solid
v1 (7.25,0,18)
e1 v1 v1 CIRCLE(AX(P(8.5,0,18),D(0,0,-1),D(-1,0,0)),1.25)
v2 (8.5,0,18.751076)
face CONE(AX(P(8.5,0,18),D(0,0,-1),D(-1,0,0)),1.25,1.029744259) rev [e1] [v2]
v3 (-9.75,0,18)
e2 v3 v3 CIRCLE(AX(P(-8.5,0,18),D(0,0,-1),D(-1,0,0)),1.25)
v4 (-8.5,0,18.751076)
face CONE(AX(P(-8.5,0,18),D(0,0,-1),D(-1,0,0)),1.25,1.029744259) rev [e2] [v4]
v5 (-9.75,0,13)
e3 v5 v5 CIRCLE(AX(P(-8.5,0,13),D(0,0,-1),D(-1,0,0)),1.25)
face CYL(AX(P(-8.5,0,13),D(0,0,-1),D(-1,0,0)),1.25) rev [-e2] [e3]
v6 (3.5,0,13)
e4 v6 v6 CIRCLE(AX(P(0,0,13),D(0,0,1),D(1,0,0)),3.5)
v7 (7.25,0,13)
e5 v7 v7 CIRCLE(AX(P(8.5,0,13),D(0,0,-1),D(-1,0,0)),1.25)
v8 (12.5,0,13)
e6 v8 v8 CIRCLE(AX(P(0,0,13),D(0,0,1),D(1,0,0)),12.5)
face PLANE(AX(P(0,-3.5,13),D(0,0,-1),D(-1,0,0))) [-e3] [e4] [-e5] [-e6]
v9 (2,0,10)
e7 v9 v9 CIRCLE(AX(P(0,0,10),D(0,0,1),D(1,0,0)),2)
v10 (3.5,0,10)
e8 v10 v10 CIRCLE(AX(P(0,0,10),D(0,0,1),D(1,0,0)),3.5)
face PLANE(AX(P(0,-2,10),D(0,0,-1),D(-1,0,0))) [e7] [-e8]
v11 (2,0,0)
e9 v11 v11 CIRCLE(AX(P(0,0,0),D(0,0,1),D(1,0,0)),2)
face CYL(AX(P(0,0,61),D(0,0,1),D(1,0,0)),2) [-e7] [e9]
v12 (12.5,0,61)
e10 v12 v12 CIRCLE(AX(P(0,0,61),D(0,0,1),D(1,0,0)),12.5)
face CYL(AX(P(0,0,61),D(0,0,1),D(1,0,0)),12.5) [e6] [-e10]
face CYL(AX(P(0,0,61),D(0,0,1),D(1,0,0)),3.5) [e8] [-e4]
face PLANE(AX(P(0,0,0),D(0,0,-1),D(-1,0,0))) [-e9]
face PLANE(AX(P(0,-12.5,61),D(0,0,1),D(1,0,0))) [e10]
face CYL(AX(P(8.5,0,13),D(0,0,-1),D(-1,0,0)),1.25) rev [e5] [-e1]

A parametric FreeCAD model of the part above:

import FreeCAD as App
import Part
import Sketcher
from FreeCAD import Vector
Q = App.Units.Quantity


def add_polygon(sketch, points):
    """Adds a closed chain of lines whose ends are joined by coincident constraints."""
    first, n = sketch.GeometryCount, len(points)
    for a, b in zip(points, points[1:] + points[:1]):
        sketch.addGeometry(Part.LineSegment(App.Vector(*a, 0), App.Vector(*b, 0)), False)
    for i in range(n):
        sketch.addConstraint(Sketcher.Constraint("Coincident", first + i, 2, first + (i + 1) % n, 1))

doc = App.newDocument("Part")
body = doc.addObject("PartDesign::Body", "Body")

# Sketch on YZ plane
sketch1 = doc.addObject("Sketcher::SketchObject", "Sketch")
body.addObject(sketch1)
sketch1.AttachmentSupport = (doc.YZ_Plane, [""])
sketch1.MapMode = "FlatFace"
add_polygon(sketch1, [(-2, 0), (0, 0), (0, 61), (-12.5, 61), (-12.5, 13), (-3.5, 13), (-3.5, 10), (-2, 10)])  # lines 0-7
sketch1.addConstraint([
    Sketcher.Constraint("Horizontal", 0),
    Sketcher.Constraint("Vertical", 1),
    Sketcher.Constraint("Horizontal", 2),
    Sketcher.Constraint("Vertical", 3),
    Sketcher.Constraint("Horizontal", 4),
    Sketcher.Constraint("Vertical", 5),
    Sketcher.Constraint("Horizontal", 6),
    Sketcher.Constraint("Vertical", 7),
    Sketcher.Constraint("Coincident", 0, 2, -1, 1),
    Sketcher.Constraint("DistanceX", 0, 1, 0, 2, Q("2 mm")),
    Sketcher.Constraint("DistanceX", 4, 1, 4, 2, Q("9 mm")),
    Sketcher.Constraint("DistanceY", 1, 1, 1, 2, Q("61 mm")),
    Sketcher.Constraint("DistanceY", 3, 2, 3, 1, Q("48 mm")),
    Sketcher.Constraint("DistanceY", 5, 2, 5, 1, Q("3 mm")),
    Sketcher.Constraint("DistanceX", 2, 2, 2, 1, Q("12.5 mm")),
])
revolution = doc.addObject("PartDesign::Revolution", "Revolution")
body.addObject(revolution)
revolution.Profile = sketch1
revolution.ReferenceAxis = (sketch1, ["V_Axis"])
revolution.Angle = 360

# Sketch on XY plane
sketch2 = doc.addObject("Sketcher::SketchObject", "Sketch001")
body.addObject(sketch2)
sketch2.AttachmentSupport = (doc.XY_Plane, [""])
sketch2.MapMode = "FlatFace"
sketch2.AttachmentOffset = App.Placement(Vector(0, 0, 13), App.Rotation())
sketch2.addGeometry([
    Part.Circle(Vector(8.5, 0, 0), Vector(0, 0, 1), 1.2),
    Part.Circle(Vector(-8.5, 0, 0), Vector(0, 0, 1), 1.2),
], False)
sketch2.addConstraint([
    Sketcher.Constraint("Equal", 0, 1),
    Sketcher.Constraint("Symmetric", 0, 3, 1, 3, -1, 1),
    Sketcher.Constraint("PointOnObject", 0, 3, -1),
    Sketcher.Constraint("Diameter", 0, Q("2.5 mm")),
    Sketcher.Constraint("DistanceX", 1, 3, 0, 3, Q("17 mm")),
])
doc.recompute()
hole = doc.addObject("PartDesign::Hole", "Hole")
body.addObject(hole)
hole.Profile = sketch2
hole.ThreadType = "None"
hole.Diameter = 2.5
hole.DepthType = "Dimension"
hole.Depth = 5
hole.DrillPoint = "Angled"
hole.DrillPointAngle = 118
hole.Reversed = True

doc.recompute()
